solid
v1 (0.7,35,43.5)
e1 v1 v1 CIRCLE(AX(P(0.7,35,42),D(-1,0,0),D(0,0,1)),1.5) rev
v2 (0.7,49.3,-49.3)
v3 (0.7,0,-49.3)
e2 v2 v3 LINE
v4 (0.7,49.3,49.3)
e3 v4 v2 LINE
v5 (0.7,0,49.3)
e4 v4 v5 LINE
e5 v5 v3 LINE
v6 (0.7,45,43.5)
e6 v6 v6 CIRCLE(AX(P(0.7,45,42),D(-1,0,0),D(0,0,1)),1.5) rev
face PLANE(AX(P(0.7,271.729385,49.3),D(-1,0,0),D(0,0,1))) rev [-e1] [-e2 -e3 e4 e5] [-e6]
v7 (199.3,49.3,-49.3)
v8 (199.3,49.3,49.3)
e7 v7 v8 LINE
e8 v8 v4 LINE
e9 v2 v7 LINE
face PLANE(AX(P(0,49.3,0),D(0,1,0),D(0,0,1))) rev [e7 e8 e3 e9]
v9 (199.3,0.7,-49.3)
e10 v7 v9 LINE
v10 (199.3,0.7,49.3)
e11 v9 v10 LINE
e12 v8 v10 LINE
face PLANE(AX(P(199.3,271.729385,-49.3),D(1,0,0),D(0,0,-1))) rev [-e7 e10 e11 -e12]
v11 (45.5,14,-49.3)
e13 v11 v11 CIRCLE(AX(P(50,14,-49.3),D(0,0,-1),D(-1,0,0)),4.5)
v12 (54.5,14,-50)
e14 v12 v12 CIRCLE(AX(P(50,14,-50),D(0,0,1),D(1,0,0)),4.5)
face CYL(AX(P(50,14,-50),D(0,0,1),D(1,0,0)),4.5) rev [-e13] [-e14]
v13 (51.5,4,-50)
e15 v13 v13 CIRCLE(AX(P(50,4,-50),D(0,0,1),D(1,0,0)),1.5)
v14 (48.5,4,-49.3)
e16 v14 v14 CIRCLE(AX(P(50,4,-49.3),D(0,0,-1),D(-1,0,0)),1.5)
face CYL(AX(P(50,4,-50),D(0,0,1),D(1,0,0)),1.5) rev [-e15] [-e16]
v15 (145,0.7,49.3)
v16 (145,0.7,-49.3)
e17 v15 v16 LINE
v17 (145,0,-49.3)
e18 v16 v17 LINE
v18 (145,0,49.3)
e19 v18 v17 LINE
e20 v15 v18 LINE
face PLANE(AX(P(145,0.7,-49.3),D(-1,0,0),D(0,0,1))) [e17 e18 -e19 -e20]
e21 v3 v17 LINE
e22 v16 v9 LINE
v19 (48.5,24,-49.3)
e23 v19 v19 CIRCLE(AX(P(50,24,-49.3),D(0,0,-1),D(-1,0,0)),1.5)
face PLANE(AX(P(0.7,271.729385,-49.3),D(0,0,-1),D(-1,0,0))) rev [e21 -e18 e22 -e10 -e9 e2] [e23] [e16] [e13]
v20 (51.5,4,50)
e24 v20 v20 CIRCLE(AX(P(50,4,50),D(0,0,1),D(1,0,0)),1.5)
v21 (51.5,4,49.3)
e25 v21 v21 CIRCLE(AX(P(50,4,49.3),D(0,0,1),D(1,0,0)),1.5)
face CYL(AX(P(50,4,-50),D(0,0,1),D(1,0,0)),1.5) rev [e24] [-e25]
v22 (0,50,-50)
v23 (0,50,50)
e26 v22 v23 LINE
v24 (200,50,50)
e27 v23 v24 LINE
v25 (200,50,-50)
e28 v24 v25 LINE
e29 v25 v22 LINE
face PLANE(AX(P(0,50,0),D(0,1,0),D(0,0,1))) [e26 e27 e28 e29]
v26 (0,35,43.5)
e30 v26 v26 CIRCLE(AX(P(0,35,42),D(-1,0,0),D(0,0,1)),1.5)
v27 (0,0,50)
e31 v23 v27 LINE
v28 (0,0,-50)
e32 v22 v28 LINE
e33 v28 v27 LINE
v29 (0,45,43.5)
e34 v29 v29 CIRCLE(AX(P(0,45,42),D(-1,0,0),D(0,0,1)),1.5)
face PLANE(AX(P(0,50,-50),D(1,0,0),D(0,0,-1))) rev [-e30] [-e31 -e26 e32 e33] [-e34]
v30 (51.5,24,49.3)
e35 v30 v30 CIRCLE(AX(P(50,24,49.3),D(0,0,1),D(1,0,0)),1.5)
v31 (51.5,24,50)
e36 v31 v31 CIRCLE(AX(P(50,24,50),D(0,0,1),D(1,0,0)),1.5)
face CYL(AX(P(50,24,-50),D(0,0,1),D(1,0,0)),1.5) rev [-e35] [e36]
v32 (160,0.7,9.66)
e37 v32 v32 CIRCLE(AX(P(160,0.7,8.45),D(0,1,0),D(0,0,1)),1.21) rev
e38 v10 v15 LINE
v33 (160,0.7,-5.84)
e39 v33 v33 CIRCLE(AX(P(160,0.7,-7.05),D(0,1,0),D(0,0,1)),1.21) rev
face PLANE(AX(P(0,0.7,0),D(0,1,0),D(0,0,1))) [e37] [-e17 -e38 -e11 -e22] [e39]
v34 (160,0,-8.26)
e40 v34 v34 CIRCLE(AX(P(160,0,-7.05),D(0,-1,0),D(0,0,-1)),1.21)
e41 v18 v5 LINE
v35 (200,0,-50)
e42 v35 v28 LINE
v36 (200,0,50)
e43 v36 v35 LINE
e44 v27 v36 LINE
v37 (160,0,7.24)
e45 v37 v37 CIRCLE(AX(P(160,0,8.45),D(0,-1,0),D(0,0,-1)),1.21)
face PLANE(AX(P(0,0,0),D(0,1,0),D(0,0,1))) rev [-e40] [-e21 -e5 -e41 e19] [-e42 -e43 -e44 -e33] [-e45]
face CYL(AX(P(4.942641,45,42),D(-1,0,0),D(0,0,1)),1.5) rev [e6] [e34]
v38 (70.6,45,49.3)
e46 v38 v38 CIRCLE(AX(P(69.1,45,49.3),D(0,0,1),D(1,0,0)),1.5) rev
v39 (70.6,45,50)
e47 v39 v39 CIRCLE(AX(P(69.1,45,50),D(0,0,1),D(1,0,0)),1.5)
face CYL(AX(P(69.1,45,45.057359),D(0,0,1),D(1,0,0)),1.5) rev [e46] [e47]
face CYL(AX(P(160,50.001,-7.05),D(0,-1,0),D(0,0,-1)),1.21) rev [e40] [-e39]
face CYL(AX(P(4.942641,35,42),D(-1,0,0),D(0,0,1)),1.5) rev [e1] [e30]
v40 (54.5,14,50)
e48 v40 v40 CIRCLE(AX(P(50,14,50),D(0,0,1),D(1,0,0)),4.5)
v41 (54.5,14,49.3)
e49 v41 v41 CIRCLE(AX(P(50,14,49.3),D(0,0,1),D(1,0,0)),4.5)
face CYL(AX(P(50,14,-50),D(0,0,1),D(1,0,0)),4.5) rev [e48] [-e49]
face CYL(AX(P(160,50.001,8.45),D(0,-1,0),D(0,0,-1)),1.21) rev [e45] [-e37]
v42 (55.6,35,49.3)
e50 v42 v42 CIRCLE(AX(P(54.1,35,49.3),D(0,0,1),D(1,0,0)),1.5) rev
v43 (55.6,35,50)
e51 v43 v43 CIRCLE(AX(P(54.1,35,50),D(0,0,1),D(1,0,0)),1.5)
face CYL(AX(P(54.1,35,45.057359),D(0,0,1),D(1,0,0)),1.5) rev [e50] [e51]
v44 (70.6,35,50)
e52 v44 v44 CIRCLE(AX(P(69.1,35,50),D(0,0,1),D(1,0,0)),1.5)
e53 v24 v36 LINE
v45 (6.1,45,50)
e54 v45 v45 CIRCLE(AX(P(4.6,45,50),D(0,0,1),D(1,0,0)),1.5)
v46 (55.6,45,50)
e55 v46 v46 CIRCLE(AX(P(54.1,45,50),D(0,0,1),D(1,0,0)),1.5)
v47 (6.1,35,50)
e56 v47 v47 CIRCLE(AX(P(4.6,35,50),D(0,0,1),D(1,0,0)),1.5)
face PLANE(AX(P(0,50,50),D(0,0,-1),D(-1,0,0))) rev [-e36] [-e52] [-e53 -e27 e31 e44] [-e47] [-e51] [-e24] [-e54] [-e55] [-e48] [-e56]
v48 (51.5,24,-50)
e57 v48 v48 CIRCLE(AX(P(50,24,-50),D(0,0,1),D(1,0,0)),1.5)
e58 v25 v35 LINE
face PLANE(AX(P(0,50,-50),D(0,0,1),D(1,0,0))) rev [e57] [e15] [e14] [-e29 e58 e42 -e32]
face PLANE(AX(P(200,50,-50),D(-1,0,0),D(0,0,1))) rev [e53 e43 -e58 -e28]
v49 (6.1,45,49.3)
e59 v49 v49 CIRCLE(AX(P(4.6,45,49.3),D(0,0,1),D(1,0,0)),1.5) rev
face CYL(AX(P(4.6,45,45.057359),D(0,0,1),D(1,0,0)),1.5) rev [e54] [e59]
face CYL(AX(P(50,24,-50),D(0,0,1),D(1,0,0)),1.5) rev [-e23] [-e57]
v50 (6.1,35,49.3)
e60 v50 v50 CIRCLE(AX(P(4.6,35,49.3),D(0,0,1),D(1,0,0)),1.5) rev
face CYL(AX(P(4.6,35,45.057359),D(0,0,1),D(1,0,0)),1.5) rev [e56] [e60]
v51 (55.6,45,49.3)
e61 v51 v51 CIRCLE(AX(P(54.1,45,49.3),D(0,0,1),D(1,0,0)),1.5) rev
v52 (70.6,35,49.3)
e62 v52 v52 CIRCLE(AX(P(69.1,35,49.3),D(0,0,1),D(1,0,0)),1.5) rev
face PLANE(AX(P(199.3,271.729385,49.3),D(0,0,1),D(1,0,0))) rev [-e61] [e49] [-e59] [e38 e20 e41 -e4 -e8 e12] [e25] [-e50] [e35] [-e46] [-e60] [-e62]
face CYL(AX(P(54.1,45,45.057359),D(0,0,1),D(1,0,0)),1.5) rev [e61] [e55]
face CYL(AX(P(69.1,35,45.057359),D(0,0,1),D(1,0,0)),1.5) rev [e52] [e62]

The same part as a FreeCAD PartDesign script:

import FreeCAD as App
import Part
import Sketcher
from FreeCAD import Vector


def add_polygon(sketch, points):
    """Adds a closed chain of lines whose ends are joined by coincident constraints."""
    first, n = sketch.GeometryCount, len(points)
    for a, b in zip(points, points[1:] + points[:1]):
        sketch.addGeometry(Part.LineSegment(App.Vector(*a, 0), App.Vector(*b, 0)), False)
    for i in range(n):
        sketch.addConstraint(Sketcher.Constraint("Coincident", first + i, 2, first + (i + 1) % n, 1))

doc = App.newDocument("Part")
body = doc.addObject("PartDesign::Body", "Body")

# Sketch on XZ plane
sketch1 = doc.addObject("Sketcher::SketchObject", "Sketch")
body.addObject(sketch1)
sketch1.AttachmentSupport = (doc.XZ_Plane, [""])
sketch1.MapMode = "FlatFace"
add_polygon(sketch1, [(0, -50), (0, 50), (200, 50), (200, -50)])  # lines 0-3
sketch1.addConstraint(Sketcher.Constraint("Vertical", 0))
sketch1.addConstraint(Sketcher.Constraint("Horizontal", 1))
sketch1.addConstraint(Sketcher.Constraint("Vertical", 2))
sketch1.addConstraint(Sketcher.Constraint("Horizontal", 3))
sketch1.addConstraint(Sketcher.Constraint("Symmetric", 0, 2, 3, 2, -1, 1))
sketch1.addConstraint(Sketcher.Constraint("DistanceX", 1, 1, 1, 2, 200.0))
sketch1.addConstraint(Sketcher.Constraint("DistanceY", 0, 1, 0, 2, 100.0))
pad1 = doc.addObject("PartDesign::Pad", "Pad")
body.addObject(pad1)
pad1.Profile = sketch1
pad1.Length = 50
pad1.Reversed = True

# Sketch on XZ plane
sketch2 = doc.addObject("Sketcher::SketchObject", "Sketch001")
body.addObject(sketch2)
sketch2.AttachmentSupport = (doc.XZ_Plane, [""])
sketch2.MapMode = "FlatFace"
add_polygon(sketch2, [(1, 49), (1, -49), (199, -49), (199, 49)])  # lines 0-3
sketch2.addConstraint(Sketcher.Constraint("Vertical", 0))
sketch2.addConstraint(Sketcher.Constraint("Horizontal", 1))
sketch2.addConstraint(Sketcher.Constraint("Vertical", 2))
sketch2.addConstraint(Sketcher.Constraint("Horizontal", 3))
sketch2.addConstraint(Sketcher.Constraint("DistanceX", 1, 1, 1, 2, 198.6))
sketch2.addConstraint(Sketcher.Constraint("DistanceY", 0, 2, 0, 1, 98.6))
sketch2.addConstraint(Sketcher.Constraint("DistanceX", -1, 1, 0, 2, 0.7))
sketch2.addConstraint(Sketcher.Constraint("DistanceY", 0, 2, -1, 1, 49.3))
pocket1 = doc.addObject("PartDesign::Pocket", "Pocket")
body.addObject(pocket1)
pocket1.Profile = sketch2
pocket1.Length = 49.3

# Sketch on XZ plane
sketch3 = doc.addObject("Sketcher::SketchObject", "Sketch002")
body.addObject(sketch3)
sketch3.AttachmentSupport = (doc.XZ_Plane, [""])
sketch3.MapMode = "FlatFace"
add_polygon(sketch3, [(145, 49), (145, -49), (199, -49), (199, 49)])  # lines 0-3
sketch3.addConstraint(Sketcher.Constraint("Vertical", 0))
sketch3.addConstraint(Sketcher.Constraint("Horizontal", 1))
sketch3.addConstraint(Sketcher.Constraint("Vertical", 2))
sketch3.addConstraint(Sketcher.Constraint("Horizontal", 3))
sketch3.addConstraint(Sketcher.Constraint("DistanceX", 1, 1, 1, 2, 54.3))
sketch3.addConstraint(Sketcher.Constraint("DistanceY", 0, 2, 0, 1, 98.6))
sketch3.addConstraint(Sketcher.Constraint("DistanceX", -1, 1, 0, 2, 145.0))
sketch3.addConstraint(Sketcher.Constraint("DistanceY", 0, 2, -1, 1, 49.3))
pad2 = doc.addObject("PartDesign::Pad", "Pad001")
body.addObject(pad2)
pad2.Profile = sketch3
pad2.Length = 0.7
pad2.Reversed = True

# Sketch on XY plane
sketch4 = doc.addObject("Sketcher::SketchObject", "Sketch003")
body.addObject(sketch4)
sketch4.AttachmentSupport = (doc.XY_Plane, [""])
sketch4.MapMode = "FlatFace"
sketch4.AttachmentOffset = App.Placement(Vector(0, 0, 50), App.Rotation())
sketch4.addGeometry(Part.Circle(Vector(50, 14, 0), Vector(0, 0, 1), 4.5), False)
sketch4.addGeometry(Part.Circle(Vector(50, 4, 0), Vector(0, 0, 1), 1.5), False)
sketch4.addGeometry(Part.Circle(Vector(50, 24, 0), Vector(0, 0, 1), 1.5), False)
sketch4.addConstraint(Sketcher.Constraint("Equal", 1, 2))
sketch4.addConstraint(Sketcher.Constraint("Vertical", 0, 3, 1, 3))
sketch4.addConstraint(Sketcher.Constraint("Vertical", 1, 3, 2, 3))
sketch4.addConstraint(Sketcher.Constraint("Diameter", 0, 9.0))
sketch4.addConstraint(Sketcher.Constraint("Diameter", 1, 3.0))
sketch4.addConstraint(Sketcher.Constraint("DistanceX", -1, 1, 0, 3, 50.0))
sketch4.addConstraint(Sketcher.Constraint("DistanceY", -1, 1, 0, 3, 14.0))
sketch4.addConstraint(Sketcher.Constraint("DistanceY", -1, 1, 1, 3, 4.0))
sketch4.addConstraint(Sketcher.Constraint("DistanceY", -1, 1, 2, 3, 24.0))
pocket2 = doc.addObject("PartDesign::Pocket", "Pocket001")
body.addObject(pocket2)
pocket2.Profile = sketch4
pocket2.Type = "ThroughAll"

# Sketch on XY plane
sketch5 = doc.addObject("Sketcher::SketchObject", "Sketch004")
body.addObject(sketch5)
sketch5.AttachmentSupport = (doc.XY_Plane, [""])
sketch5.MapMode = "FlatFace"
sketch5.AttachmentOffset = App.Placement(Vector(0, 0, 50), App.Rotation())
sketch5.addGeometry(Part.Circle(Vector(4.6, 45, 0), Vector(0, 0, 1), 1.5), False)
sketch5.addGeometry(Part.Circle(Vector(4.6, 35, 0), Vector(0, 0, 1), 1.5), False)
sketch5.addGeometry(Part.Circle(Vector(54.1, 45, 0), Vector(0, 0, 1), 1.5), False)
sketch5.addGeometry(Part.Circle(Vector(54.1, 35, 0), Vector(0, 0, 1), 1.5), False)
sketch5.addGeometry(Part.Circle(Vector(69.1, 45, 0), Vector(0, 0, 1), 1.5), False)
sketch5.addGeometry(Part.Circle(Vector(69.1, 35, 0), Vector(0, 0, 1), 1.5), False)
sketch5.addConstraint(Sketcher.Constraint("Equal", 0, 1))
sketch5.addConstraint(Sketcher.Constraint("Equal", 1, 2))
sketch5.addConstraint(Sketcher.Constraint("Equal", 2, 3))
sketch5.addConstraint(Sketcher.Constraint("Equal", 3, 4))
sketch5.addConstraint(Sketcher.Constraint("Equal", 4, 5))
sketch5.addConstraint(Sketcher.Constraint("Horizontal", 0, 3, 2, 3))
sketch5.addConstraint(Sketcher.Constraint("Horizontal", 1, 3, 3, 3))
sketch5.addConstraint(Sketcher.Constraint("Horizontal", 2, 3, 4, 3))
sketch5.addConstraint(Sketcher.Constraint("Horizontal", 3, 3, 5, 3))
sketch5.addConstraint(Sketcher.Constraint("Vertical", 0, 3, 1, 3))
sketch5.addConstraint(Sketcher.Constraint("Vertical", 2, 3, 3, 3))
sketch5.addConstraint(Sketcher.Constraint("Vertical", 4, 3, 5, 3))
sketch5.addConstraint(Sketcher.Constraint("Diameter", 0, 3.0))
sketch5.addConstraint(Sketcher.Constraint("DistanceY", -1, 1, 0, 3, 45.0))
sketch5.addConstraint(Sketcher.Constraint("DistanceY", -1, 1, 1, 3, 35.0))
sketch5.addConstraint(Sketcher.Constraint("DistanceX", 2, 3, 4, 3, 15.0))
sketch5.addConstraint(Sketcher.Constraint("DistanceX", -1, 1, 0, 3, 4.6))
sketch5.addConstraint(Sketcher.Constraint("DistanceX", -1, 1, 2, 3, 54.1))
pocket3 = doc.addObject("PartDesign::Pocket", "Pocket002")
body.addObject(pocket3)
pocket3.Profile = sketch5
pocket3.Length = 0.7

# Sketch on YZ plane
sketch6 = doc.addObject("Sketcher::SketchObject", "Sketch005")
body.addObject(sketch6)
sketch6.AttachmentSupport = (doc.YZ_Plane, [""])
sketch6.MapMode = "FlatFace"
sketch6.addGeometry(Part.Circle(Vector(45, 42, 0), Vector(0, 0, 1), 1.5), False)
sketch6.addGeometry(Part.Circle(Vector(35, 42, 0), Vector(0, 0, 1), 1.5), False)
sketch6.addConstraint(Sketcher.Constraint("Equal", 0, 1))
sketch6.addConstraint(Sketcher.Constraint("Horizontal", 0, 3, 1, 3))
sketch6.addConstraint(Sketcher.Constraint("Diameter", 0, 3.0))
sketch6.addConstraint(Sketcher.Constraint("DistanceX", -1, 1, 0, 3, 45.0))
sketch6.addConstraint(Sketcher.Constraint("DistanceY", -1, 1, 0, 3, 42.0))
sketch6.addConstraint(Sketcher.Constraint("DistanceX", -1, 1, 1, 3, 35.0))
pocket4 = doc.addObject("PartDesign::Pocket", "Pocket003")
body.addObject(pocket4)
pocket4.Profile = sketch6
pocket4.Length = 0.7
pocket4.Reversed = True

# Sketch on XZ plane
sketch7 = doc.addObject("Sketcher::SketchObject", "Sketch006")
body.addObject(sketch7)
sketch7.AttachmentSupport = (doc.XZ_Plane, [""])
sketch7.MapMode = "FlatFace"
sketch7.addGeometry(Part.Circle(Vector(160, 8.4, 0), Vector(0, 0, 1), 1.2), False)
sketch7.addConstraint(Sketcher.Constraint("Diameter", 0, 2.42))
sketch7.addConstraint(Sketcher.Constraint("DistanceX", -1, 1, 0, 3, 160.0))
sketch7.addConstraint(Sketcher.Constraint("DistanceY", -1, 1, 0, 3, 8.45))
pocket5 = doc.addObject("PartDesign::Pocket", "Pocket004")
body.addObject(pocket5)
pocket5.Profile = sketch7
pocket5.Type = "UpToFirst"

# Sketch on XZ plane
sketch8 = doc.addObject("Sketcher::SketchObject", "Sketch007")
body.addObject(sketch8)
sketch8.AttachmentSupport = (doc.XZ_Plane, [""])
sketch8.MapMode = "FlatFace"
sketch8.addGeometry(Part.Circle(Vector(160, -7, 0), Vector(0, 0, 1), 1.2), False)
sketch8.addConstraint(Sketcher.Constraint("Diameter", 0, 2.42))
sketch8.addConstraint(Sketcher.Constraint("DistanceX", -1, 1, 0, 3, 160.0))
sketch8.addConstraint(Sketcher.Constraint("DistanceY", 0, 3, -1, 1, 7.05))
pocket6 = doc.addObject("PartDesign::Pocket", "Pocket005")
body.addObject(pocket6)
pocket6.Profile = sketch8
pocket6.Type = "UpToFirst"

doc.recompute()
